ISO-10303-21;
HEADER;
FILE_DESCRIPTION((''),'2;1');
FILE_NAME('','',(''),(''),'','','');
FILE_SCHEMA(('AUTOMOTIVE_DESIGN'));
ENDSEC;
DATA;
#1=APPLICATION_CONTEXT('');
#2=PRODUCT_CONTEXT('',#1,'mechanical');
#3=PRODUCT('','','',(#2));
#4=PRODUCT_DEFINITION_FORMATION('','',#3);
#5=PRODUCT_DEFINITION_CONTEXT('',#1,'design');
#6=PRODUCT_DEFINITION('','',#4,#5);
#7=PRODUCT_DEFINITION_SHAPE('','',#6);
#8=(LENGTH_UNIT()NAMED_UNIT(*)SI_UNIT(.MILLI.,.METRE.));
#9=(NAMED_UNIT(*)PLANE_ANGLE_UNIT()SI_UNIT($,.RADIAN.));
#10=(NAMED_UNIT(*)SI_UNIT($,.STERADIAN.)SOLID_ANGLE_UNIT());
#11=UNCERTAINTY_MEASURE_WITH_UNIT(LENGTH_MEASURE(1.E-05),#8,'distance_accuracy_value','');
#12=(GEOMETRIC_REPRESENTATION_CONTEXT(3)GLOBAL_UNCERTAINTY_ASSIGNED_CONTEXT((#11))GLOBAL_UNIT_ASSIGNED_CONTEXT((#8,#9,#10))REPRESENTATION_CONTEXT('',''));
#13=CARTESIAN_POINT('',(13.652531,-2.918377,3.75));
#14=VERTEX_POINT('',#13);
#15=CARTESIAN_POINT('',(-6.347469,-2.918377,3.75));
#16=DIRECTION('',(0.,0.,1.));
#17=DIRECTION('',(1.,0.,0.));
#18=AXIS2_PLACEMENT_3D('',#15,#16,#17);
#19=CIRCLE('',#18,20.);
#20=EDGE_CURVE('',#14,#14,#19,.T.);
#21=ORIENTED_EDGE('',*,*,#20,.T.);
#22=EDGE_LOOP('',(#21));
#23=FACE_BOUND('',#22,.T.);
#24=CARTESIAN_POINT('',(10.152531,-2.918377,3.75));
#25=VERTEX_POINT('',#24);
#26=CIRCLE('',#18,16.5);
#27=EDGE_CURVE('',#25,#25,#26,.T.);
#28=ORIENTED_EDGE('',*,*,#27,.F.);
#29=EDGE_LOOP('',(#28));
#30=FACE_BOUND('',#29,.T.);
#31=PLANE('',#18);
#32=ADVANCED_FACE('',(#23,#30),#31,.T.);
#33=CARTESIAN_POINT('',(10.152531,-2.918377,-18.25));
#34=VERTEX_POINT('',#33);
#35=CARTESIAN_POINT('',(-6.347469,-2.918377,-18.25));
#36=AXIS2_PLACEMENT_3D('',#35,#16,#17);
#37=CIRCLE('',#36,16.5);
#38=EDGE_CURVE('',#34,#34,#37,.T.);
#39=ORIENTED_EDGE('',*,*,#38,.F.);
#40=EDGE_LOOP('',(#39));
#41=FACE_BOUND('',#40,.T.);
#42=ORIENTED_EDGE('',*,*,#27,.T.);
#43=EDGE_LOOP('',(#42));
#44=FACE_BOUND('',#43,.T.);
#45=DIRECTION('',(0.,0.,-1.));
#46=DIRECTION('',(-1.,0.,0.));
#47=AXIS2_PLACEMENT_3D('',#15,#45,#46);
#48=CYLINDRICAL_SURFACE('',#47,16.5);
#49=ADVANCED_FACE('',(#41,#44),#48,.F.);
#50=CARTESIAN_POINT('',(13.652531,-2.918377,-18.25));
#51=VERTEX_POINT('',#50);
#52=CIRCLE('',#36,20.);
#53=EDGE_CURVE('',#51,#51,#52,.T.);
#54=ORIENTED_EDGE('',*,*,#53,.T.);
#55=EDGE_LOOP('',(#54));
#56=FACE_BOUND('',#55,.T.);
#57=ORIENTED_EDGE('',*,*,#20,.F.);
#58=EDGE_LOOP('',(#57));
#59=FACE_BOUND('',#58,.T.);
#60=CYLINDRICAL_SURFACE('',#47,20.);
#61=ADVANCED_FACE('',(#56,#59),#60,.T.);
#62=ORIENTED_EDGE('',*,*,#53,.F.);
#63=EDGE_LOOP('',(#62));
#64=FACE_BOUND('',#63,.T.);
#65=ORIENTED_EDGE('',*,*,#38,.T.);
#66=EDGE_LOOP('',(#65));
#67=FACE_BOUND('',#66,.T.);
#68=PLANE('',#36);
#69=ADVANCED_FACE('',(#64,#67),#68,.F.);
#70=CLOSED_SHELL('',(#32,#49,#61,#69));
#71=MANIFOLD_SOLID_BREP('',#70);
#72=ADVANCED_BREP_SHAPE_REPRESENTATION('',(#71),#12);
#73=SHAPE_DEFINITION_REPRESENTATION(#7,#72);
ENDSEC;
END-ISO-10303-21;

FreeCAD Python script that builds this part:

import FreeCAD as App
import Part
import Sketcher

V = App.Vector
Q = App.Units.Quantity

doc = App.newDocument("Part")
params = doc.addObject("Spreadsheet::Sheet", "Params")
for row, (alias, value) in enumerate([
    ("sketch1_diameter", "40 mm"),
    ("sketch1_diameter2", "33 mm"),
    ("pad1_length", "3.75 mm"),
    ("pad1_length2", "18.25 mm"),
], start=1):
    params.set(f"A{row}", alias)
    params.set(f"B{row}", "=" + value)
    params.setAlias(f"B{row}", alias)

body = doc.addObject("PartDesign::Body", "Body")

sketch1 = doc.addObject("Sketcher::SketchObject", "Sketch")
body.addObject(sketch1)
sketch1.AttachmentSupport = (doc.XY_Plane, [""])
sketch1.MapMode = "FlatFace"
sketch1.addGeometry(Part.Circle(V(-6.347469, -2.918377, 0), V(0, 0, 1), 20), False)
sketch1.addGeometry(Part.Circle(V(-6.347469, -2.918377, 0), V(0, 0, 1), 16.5), False)
sketch1.addConstraint(Sketcher.Constraint("Coincident", 1, 3, 0, 3))
sketch1.addConstraint(Sketcher.Constraint("Diameter", 0, Q("40 mm")))
sketch1.addConstraint(Sketcher.Constraint("Diameter", 1, Q("33 mm")))
sketch1.addConstraint(Sketcher.Constraint("DistanceX", 0, 3, -1, 1, Q("6.347469 mm")))
sketch1.addConstraint(Sketcher.Constraint("DistanceY", 0, 3, -1, 1, Q("2.918377 mm")))
sketch1.setExpression("Constraints[1]", "Params.sketch1_diameter")
sketch1.setExpression("Constraints[2]", "Params.sketch1_diameter2")
pad1 = doc.addObject("PartDesign::Pad", "Pad")
body.addObject(pad1)
pad1.Profile = sketch1
pad1.Type = "TwoLengths"
pad1.setExpression("Length", "Params.pad1_length")
pad1.setExpression("Length2", "Params.pad1_length2")

doc.recompute()
